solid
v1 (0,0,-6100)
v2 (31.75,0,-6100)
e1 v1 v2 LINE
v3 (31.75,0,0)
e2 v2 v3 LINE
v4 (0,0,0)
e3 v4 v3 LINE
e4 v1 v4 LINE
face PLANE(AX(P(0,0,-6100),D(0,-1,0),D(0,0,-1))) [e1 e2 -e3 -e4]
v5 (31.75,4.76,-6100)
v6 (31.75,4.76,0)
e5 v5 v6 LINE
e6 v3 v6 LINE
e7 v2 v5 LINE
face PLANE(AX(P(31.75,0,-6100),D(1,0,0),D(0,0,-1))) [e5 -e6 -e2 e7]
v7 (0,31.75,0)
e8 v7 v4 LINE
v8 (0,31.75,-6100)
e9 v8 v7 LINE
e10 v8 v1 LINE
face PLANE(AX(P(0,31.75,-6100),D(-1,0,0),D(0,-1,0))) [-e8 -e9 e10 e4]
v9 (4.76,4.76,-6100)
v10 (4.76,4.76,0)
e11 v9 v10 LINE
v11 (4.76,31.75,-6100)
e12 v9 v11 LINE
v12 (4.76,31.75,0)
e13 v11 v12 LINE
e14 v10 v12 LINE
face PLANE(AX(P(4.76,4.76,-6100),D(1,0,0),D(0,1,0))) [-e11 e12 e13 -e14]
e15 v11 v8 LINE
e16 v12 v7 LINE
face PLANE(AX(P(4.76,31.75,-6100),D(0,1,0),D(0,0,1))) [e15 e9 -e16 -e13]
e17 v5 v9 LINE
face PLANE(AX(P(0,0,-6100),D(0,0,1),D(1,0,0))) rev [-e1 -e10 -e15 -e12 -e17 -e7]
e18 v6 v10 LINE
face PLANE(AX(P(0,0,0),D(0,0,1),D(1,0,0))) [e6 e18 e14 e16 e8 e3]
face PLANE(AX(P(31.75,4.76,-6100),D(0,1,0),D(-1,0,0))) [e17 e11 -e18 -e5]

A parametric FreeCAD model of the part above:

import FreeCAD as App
import Part
import Sketcher
from FreeCAD import Vector
Q = App.Units.Quantity

doc = App.newDocument("Part")
params = doc.addObject("Spreadsheet::Sheet", "Params")
for row, (alias, value) in enumerate([
    ("sketch1_width", "31.75 mm"),
    ("sketch1_width2", "26.99 mm"),
    ("pad1_length", "6100 mm"),
], start=1):
    params.set(f"A{row}", alias)
    params.set(f"B{row}", "=" + value)
    params.setAlias(f"B{row}", alias)

body = doc.addObject("PartDesign::Body", "Body")

sketch1 = body.newObject("Sketcher::SketchObject", "Sketch")
sketch1.AttachmentSupport = (doc.getObject("XY_Plane"), [""])
sketch1.MapMode = "FlatFace"
sketch1.addGeometry([
    Part.LineSegment(Vector(0, 31.8, 0), Vector(0, 0, 0)),
    Part.LineSegment(Vector(0, 0, 0), Vector(31.8, 0, 0)),
    Part.LineSegment(Vector(31.8, 0, 0), Vector(31.8, 4.8, 0)),
    Part.LineSegment(Vector(31.8, 4.8, 0), Vector(4.8, 4.8, 0)),
    Part.LineSegment(Vector(4.8, 4.8, 0), Vector(4.8, 31.8, 0)),
    Part.LineSegment(Vector(4.8, 31.8, 0), Vector(0, 31.8, 0)),
], False)
sketch1.addConstraint([
    Sketcher.Constraint("Coincident", 0, 2, 1, 1),
    Sketcher.Constraint("Coincident", 1, 2, 2, 1),
    Sketcher.Constraint("Coincident", 2, 2, 3, 1),
    Sketcher.Constraint("Coincident", 3, 2, 4, 1),
    Sketcher.Constraint("Coincident", 4, 2, 5, 1),
    Sketcher.Constraint("Coincident", 5, 2, 0, 1),
    Sketcher.Constraint("Vertical", 0),
    Sketcher.Constraint("Horizontal", 1),
    Sketcher.Constraint("Vertical", 2),
    Sketcher.Constraint("Horizontal", 3),
    Sketcher.Constraint("Vertical", 4),
    Sketcher.Constraint("Horizontal", 5),
    Sketcher.Constraint("Coincident", 0, 2, -1, 1),
    Sketcher.Constraint("Equal", 1, 0),
    Sketcher.Constraint("Equal", 5, 2),
    Sketcher.Constraint("DistanceX", 1, 1, 1, 2, Q("31.75 mm")),
    Sketcher.Constraint("DistanceX", 3, 2, 3, 1, Q("26.99 mm")),
])
sketch1.setExpression("Constraints[15]", "Params.sketch1_width")
sketch1.setExpression("Constraints[16]", "Params.sketch1_width2")
pad1 = body.newObject("PartDesign::Pad", "Pad")
pad1.Profile = sketch1
pad1.setExpression("Length", "Params.pad1_length")
pad1.Reversed = True

doc.recompute()
